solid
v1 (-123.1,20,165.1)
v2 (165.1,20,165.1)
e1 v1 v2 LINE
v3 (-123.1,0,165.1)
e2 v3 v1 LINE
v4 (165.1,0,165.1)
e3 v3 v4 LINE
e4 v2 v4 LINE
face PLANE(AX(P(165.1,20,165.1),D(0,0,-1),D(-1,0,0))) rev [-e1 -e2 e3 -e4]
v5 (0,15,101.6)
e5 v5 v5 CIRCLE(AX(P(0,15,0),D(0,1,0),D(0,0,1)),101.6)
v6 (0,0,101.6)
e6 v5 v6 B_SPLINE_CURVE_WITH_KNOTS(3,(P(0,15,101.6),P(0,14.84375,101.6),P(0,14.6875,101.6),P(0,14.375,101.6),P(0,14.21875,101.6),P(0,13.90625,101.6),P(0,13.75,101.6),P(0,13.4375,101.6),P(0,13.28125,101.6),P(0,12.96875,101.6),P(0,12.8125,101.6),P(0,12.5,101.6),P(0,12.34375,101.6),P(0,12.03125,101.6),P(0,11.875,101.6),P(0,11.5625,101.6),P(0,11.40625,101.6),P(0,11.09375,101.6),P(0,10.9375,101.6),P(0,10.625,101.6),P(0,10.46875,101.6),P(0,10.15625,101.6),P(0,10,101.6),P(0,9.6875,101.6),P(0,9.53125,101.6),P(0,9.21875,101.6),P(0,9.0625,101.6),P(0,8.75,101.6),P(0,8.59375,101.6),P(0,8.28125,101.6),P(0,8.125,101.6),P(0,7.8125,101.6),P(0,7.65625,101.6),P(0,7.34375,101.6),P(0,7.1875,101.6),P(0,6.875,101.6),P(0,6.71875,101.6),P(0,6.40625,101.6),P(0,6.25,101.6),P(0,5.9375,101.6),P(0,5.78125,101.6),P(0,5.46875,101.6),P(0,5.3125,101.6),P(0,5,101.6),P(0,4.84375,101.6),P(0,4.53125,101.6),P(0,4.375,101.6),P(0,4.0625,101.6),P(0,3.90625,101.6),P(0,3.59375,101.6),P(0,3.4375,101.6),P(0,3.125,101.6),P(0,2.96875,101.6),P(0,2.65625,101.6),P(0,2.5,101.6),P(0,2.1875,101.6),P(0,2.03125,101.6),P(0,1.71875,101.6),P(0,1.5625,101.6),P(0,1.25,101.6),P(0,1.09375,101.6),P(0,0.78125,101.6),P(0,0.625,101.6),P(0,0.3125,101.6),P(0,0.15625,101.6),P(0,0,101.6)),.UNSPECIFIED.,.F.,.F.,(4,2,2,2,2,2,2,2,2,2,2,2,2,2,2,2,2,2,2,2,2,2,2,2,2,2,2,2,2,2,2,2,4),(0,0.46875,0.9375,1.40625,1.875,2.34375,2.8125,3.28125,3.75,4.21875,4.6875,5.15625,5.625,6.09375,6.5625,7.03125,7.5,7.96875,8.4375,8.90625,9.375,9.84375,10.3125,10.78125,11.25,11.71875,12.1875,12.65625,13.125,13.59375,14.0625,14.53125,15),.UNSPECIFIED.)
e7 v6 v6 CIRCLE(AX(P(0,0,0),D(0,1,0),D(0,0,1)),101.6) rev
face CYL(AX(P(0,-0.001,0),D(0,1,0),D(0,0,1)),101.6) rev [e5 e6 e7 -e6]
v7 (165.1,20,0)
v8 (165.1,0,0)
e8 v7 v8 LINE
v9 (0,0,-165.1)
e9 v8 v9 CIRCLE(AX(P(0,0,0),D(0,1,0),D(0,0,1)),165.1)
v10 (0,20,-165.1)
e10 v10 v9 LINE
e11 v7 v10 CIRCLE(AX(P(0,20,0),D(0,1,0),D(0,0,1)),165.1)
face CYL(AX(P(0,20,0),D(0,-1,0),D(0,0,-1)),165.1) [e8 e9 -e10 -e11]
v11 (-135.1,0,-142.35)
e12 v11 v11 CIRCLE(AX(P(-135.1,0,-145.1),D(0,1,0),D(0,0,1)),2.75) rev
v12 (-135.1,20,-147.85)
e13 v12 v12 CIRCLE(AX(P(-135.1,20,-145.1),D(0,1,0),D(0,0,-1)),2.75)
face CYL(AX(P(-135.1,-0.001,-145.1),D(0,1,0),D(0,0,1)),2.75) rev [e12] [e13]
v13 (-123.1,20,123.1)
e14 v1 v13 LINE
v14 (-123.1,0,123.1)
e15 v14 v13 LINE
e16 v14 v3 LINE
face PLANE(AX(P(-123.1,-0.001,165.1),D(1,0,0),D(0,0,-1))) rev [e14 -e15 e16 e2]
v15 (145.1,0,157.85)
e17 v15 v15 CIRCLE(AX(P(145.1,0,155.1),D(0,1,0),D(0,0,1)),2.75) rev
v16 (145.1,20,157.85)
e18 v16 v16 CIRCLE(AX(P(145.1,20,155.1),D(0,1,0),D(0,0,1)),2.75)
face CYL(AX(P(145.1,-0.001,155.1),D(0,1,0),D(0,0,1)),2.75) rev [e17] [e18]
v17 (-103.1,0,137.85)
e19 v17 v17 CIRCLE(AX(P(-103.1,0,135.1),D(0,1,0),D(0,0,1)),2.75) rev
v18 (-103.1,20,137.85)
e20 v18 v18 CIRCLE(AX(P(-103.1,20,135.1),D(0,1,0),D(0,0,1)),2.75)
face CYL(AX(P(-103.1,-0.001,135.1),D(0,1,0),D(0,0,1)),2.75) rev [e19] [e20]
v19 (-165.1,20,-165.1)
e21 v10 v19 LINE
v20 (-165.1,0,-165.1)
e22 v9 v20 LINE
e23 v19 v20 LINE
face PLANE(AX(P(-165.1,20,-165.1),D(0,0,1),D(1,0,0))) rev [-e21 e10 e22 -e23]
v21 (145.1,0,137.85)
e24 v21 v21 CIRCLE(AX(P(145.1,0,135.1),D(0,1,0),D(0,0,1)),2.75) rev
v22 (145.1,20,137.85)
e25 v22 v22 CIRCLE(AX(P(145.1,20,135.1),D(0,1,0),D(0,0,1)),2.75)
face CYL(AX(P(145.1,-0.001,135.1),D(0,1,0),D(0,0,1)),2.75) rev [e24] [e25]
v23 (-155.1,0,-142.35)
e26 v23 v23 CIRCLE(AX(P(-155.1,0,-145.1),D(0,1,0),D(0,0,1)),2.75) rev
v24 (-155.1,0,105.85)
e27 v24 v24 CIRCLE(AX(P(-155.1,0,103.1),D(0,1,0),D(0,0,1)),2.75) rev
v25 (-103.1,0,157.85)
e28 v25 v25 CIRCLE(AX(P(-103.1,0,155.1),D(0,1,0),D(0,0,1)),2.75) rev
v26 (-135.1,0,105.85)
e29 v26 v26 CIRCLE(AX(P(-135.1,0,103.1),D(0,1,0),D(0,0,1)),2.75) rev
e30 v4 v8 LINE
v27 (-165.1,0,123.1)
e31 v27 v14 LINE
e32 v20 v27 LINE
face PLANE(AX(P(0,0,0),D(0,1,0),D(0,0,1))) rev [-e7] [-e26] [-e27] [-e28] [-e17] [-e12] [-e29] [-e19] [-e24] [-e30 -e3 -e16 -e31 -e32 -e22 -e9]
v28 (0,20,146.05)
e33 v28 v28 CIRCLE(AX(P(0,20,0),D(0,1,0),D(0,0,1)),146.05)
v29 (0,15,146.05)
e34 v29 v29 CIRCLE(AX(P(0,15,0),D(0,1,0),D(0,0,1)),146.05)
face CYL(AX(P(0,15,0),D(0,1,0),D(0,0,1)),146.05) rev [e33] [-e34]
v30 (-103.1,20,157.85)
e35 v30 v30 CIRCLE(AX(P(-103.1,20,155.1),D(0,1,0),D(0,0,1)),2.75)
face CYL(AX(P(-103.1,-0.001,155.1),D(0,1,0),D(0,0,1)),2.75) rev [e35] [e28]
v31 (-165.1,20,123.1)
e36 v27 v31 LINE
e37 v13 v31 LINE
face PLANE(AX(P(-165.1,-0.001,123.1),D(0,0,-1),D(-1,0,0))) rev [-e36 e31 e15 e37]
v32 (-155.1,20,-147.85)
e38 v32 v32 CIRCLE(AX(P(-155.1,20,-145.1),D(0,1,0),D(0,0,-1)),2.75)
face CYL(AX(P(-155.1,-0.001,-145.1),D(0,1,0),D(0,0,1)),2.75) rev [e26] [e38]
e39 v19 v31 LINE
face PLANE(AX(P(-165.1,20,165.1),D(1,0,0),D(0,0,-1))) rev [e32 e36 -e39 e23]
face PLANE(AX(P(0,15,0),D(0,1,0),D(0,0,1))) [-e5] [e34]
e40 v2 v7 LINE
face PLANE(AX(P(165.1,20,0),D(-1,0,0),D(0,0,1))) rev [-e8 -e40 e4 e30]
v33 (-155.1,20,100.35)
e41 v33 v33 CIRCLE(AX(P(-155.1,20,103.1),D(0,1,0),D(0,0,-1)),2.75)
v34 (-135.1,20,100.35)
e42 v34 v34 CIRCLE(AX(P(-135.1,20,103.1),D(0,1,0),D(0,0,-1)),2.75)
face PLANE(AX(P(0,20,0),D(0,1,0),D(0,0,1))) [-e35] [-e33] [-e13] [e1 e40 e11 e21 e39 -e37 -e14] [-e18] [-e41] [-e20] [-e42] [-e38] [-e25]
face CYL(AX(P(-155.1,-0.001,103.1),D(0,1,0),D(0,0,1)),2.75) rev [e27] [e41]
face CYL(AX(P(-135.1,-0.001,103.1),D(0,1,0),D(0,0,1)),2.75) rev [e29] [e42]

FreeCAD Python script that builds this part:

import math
import FreeCAD as App
import Part
import Sketcher
Q = App.Units.Quantity

doc = App.newDocument("Part")
body = doc.addObject("PartDesign::Body", "Body")

# Sketch on XZ plane
sketch1 = body.newObject("Sketcher::SketchObject", "Sketch")
sketch1.AttachmentSupport = (doc.getObject("XZ_Plane"), [""])
sketch1.MapMode = "FlatFace"
sketch1.addGeometry(Part.LineSegment(App.Vector(165, 165, 0), App.Vector(165, 0, 0)), False)
sketch1.addGeometry(Part.ArcOfCircle(Part.Circle(App.Vector(0, 0, 0), App.Vector(0, 0, 1), 165), math.radians(-90), math.radians(0)), False)
sketch1.addGeometry(Part.LineSegment(App.Vector(0, -165, 0), App.Vector(-165, -165, 0)), False)
sketch1.addGeometry(Part.LineSegment(App.Vector(-165, -165, 0), App.Vector(-165, 165, 0)), False)
sketch1.addGeometry(Part.LineSegment(App.Vector(-165, 165, 0), App.Vector(165, 165, 0)), False)
sketch1.addConstraint(Sketcher.Constraint("Tangent", 0, 2, 1, 2))
sketch1.addConstraint(Sketcher.Constraint("Tangent", 1, 1, 2, 1))
sketch1.addConstraint(Sketcher.Constraint("Coincident", 2, 2, 3, 1))
sketch1.addConstraint(Sketcher.Constraint("Coincident", 3, 2, 4, 1))
sketch1.addConstraint(Sketcher.Constraint("Coincident", 4, 2, 0, 1))
sketch1.addConstraint(Sketcher.Constraint("Vertical", 0))
sketch1.addConstraint(Sketcher.Constraint("Horizontal", 2))
sketch1.addConstraint(Sketcher.Constraint("Vertical", 3))
sketch1.addConstraint(Sketcher.Constraint("Horizontal", 4))
sketch1.addConstraint(Sketcher.Constraint("Coincident", 1, 3, -1, 1))
sketch1.addConstraint(Sketcher.Constraint("Symmetric", 2, 2, 4, 2, -1, 1))
sketch1.addConstraint(Sketcher.Constraint("Radius", 1, Q("165.1 mm")))
pad1 = body.newObject("PartDesign::Pad", "Pad")
pad1.Profile = sketch1
pad1.Length = 20
pad1.Reversed = True

# Sketch on XZ plane
sketch2 = body.newObject("Sketcher::SketchObject", "Sketch001")
sketch2.AttachmentSupport = (doc.getObject("XZ_Plane"), [""])
sketch2.MapMode = "FlatFace"
sketch2.AttachmentOffset = App.Placement(App.Vector(0, 0, -20), App.Rotation())
sketch2.addGeometry(Part.Circle(App.Vector(0, 0, 0), App.Vector(0, 0, 1), 146), False)
sketch2.addConstraint(Sketcher.Constraint("Coincident", 0, 3, -1, 1))
sketch2.addConstraint(Sketcher.Constraint("Diameter", 0, Q("292.1 mm")))
pocket1 = body.newObject("PartDesign::Pocket", "Pocket")
pocket1.Profile = sketch2
pocket1.Length = 5
pocket1.Reversed = True

# Sketch on XZ plane
sketch3 = body.newObject("Sketcher::SketchObject", "Sketch002")
sketch3.AttachmentSupport = (doc.getObject("XZ_Plane"), [""])
sketch3.MapMode = "FlatFace"
sketch3.AttachmentOffset = App.Placement(App.Vector(0, 0, -15), App.Rotation())
sketch3.addGeometry(Part.Circle(App.Vector(0, 0, 0), App.Vector(0, 0, 1), 102), False)
sketch3.addConstraint(Sketcher.Constraint("Coincident", 0, 3, -1, 1))
sketch3.addConstraint(Sketcher.Constraint("Diameter", 0, Q("203.2 mm")))
pocket2 = body.newObject("PartDesign::Pocket", "Pocket001")
pocket2.Profile = sketch3
pocket2.Type = "UpToFirst"
pocket2.Reversed = True

# Sketch on XZ plane
sketch4 = body.newObject("Sketcher::SketchObject", "Sketch003")
sketch4.AttachmentSupport = (doc.getObject("XZ_Plane"), [""])
sketch4.MapMode = "FlatFace"
sketch4.AttachmentOffset = App.Placement(App.Vector(0, 0, -20), App.Rotation())
sketch4.addGeometry(Part.LineSegment(App.Vector(-165, 123, 0), App.Vector(-165, 165, 0)), False)
sketch4.addGeometry(Part.LineSegment(App.Vector(-165, 165, 0), App.Vector(-123, 165, 0)), False)
sketch4.addGeometry(Part.LineSegment(App.Vector(-123, 165, 0), App.Vector(-123, 123, 0)), False)
sketch4.addGeometry(Part.LineSegment(App.Vector(-123, 123, 0), App.Vector(-165, 123, 0)), False)
sketch4.addConstraint(Sketcher.Constraint("Coincident", 0, 2, 1, 1))
sketch4.addConstraint(Sketcher.Constraint("Coincident", 1, 2, 2, 1))
sketch4.addConstraint(Sketcher.Constraint("Coincident", 2, 2, 3, 1))
sketch4.addConstraint(Sketcher.Constraint("Coincident", 3, 2, 0, 1))
sketch4.addConstraint(Sketcher.Constraint("Vertical", 0))
sketch4.addConstraint(Sketcher.Constraint("Horizontal", 1))
sketch4.addConstraint(Sketcher.Constraint("Vertical", 2))
sketch4.addConstraint(Sketcher.Constraint("Horizontal", 3))
sketch4.addConstraint(Sketcher.Constraint("Equal", 3, 0))
sketch4.addConstraint(Sketcher.Constraint("DistanceX", 1, 1, 1, 2, Q("42 mm")))
sketch4.addConstraint(Sketcher.Constraint("DistanceX", 0, 2, -1, 1, Q("165.1 mm")))
sketch4.addConstraint(Sketcher.Constraint("DistanceY", -1, 1, 0, 2, Q("165.1 mm")))
pocket3 = body.newObject("PartDesign::Pocket", "Pocket002")
pocket3.Profile = sketch4
pocket3.Type = "UpToFirst"
pocket3.Reversed = True

# Sketch on XZ plane
sketch5 = body.newObject("Sketcher::SketchObject", "Sketch004")
sketch5.AttachmentSupport = (doc.getObject("XZ_Plane"), [""])
sketch5.MapMode = "FlatFace"
sketch5.AttachmentOffset = App.Placement(App.Vector(0, 0, -20), App.Rotation())
sketch5.addGeometry(Part.Circle(App.Vector(-103.1, 135.1, 0), App.Vector(0, 0, 1), 2.8), False)
sketch5.addConstraint(Sketcher.Constraint("Diameter", 0, Q("5.5 mm")))
sketch5.addConstraint(Sketcher.Constraint("DistanceX", 0, 3, -1, 1, Q("103.1 mm")))
sketch5.addConstraint(Sketcher.Constraint("DistanceY", -1, 1, 0, 3, Q("135.1 mm")))
pocket4 = body.newObject("PartDesign::Pocket", "Pocket003")
pocket4.Profile = sketch5
pocket4.Type = "UpToFirst"
pocket4.Reversed = True

# Sketch on XZ plane
sketch6 = body.newObject("Sketcher::SketchObject", "Sketch005")
sketch6.AttachmentSupport = (doc.getObject("XZ_Plane"), [""])
sketch6.MapMode = "FlatFace"
sketch6.AttachmentOffset = App.Placement(App.Vector(0, 0, -20), App.Rotation())
sketch6.addGeometry(Part.Circle(App.Vector(145.1, 135.1, 0), App.Vector(0, 0, 1), 2.8), False)
sketch6.addConstraint(Sketcher.Constraint("Diameter", 0, Q("5.5 mm")))
sketch6.addConstraint(Sketcher.Constraint("DistanceX", -1, 1, 0, 3, Q("145.1 mm")))
sketch6.addConstraint(Sketcher.Constraint("DistanceY", -1, 1, 0, 3, Q("135.1 mm")))
pocket5 = body.newObject("PartDesign::Pocket", "Pocket004")
pocket5.Profile = sketch6
pocket5.Type = "UpToFirst"
pocket5.Reversed = True

# Sketch on XZ plane
sketch7 = body.newObject("Sketcher::SketchObject", "Sketch006")
sketch7.AttachmentSupport = (doc.getObject("XZ_Plane"), [""])
sketch7.MapMode = "FlatFace"
sketch7.AttachmentOffset = App.Placement(App.Vector(0, 0, -20), App.Rotation())
sketch7.addGeometry(Part.Circle(App.Vector(-103.1, 155.1, 0), App.Vector(0, 0, 1), 2.8), False)
sketch7.addConstraint(Sketcher.Constraint("Diameter", 0, Q("5.5 mm")))
sketch7.addConstraint(Sketcher.Constraint("DistanceX", 0, 3, -1, 1, Q("103.1 mm")))
sketch7.addConstraint(Sketcher.Constraint("DistanceY", -1, 1, 0, 3, Q("155.1 mm")))
pocket6 = body.newObject("PartDesign::Pocket", "Pocket005")
pocket6.Profile = sketch7
pocket6.Type = "UpToFirst"
pocket6.Reversed = True

# Sketch on XZ plane
sketch8 = body.newObject("Sketcher::SketchObject", "Sketch007")
sketch8.AttachmentSupport = (doc.getObject("XZ_Plane"), [""])
sketch8.MapMode = "FlatFace"
sketch8.AttachmentOffset = App.Placement(App.Vector(0, 0, -20), App.Rotation())
sketch8.addGeometry(Part.Circle(App.Vector(145.1, 155.1, 0), App.Vector(0, 0, 1), 2.8), False)
sketch8.addConstraint(Sketcher.Constraint("Diameter", 0, Q("5.5 mm")))
sketch8.addConstraint(Sketcher.Constraint("DistanceX", -1, 1, 0, 3, Q("145.1 mm")))
sketch8.addConstraint(Sketcher.Constraint("DistanceY", -1, 1, 0, 3, Q("155.1 mm")))
pocket7 = body.newObject("PartDesign::Pocket", "Pocket006")
pocket7.Profile = sketch8
pocket7.Type = "UpToFirst"
pocket7.Reversed = True

# Sketch on XZ plane
sketch9 = body.newObject("Sketcher::SketchObject", "Sketch008")
sketch9.AttachmentSupport = (doc.getObject("XZ_Plane"), [""])
sketch9.MapMode = "FlatFace"
sketch9.AttachmentOffset = App.Placement(App.Vector(0, 0, -20), App.Rotation())
sketch9.addGeometry(Part.Circle(App.Vector(-155.1, -145.1, 0), App.Vector(0, 0, 1), 2.8), False)
sketch9.addConstraint(Sketcher.Constraint("Diameter", 0, Q("5.5 mm")))
sketch9.addConstraint(Sketcher.Constraint("DistanceX", 0, 3, -1, 1, Q("155.1 mm")))
sketch9.addConstraint(Sketcher.Constraint("DistanceY", 0, 3, -1, 1, Q("145.1 mm")))
pocket8 = body.newObject("PartDesign::Pocket", "Pocket007")
pocket8.Profile = sketch9
pocket8.Type = "UpToFirst"
pocket8.Reversed = True

# Sketch on XZ plane
sketch10 = body.newObject("Sketcher::SketchObject", "Sketch009")
sketch10.AttachmentSupport = (doc.getObject("XZ_Plane"), [""])
sketch10.MapMode = "FlatFace"
sketch10.AttachmentOffset = App.Placement(App.Vector(0, 0, -20), App.Rotation())
sketch10.addGeometry(Part.Circle(App.Vector(-155.1, 103.1, 0), App.Vector(0, 0, 1), 2.8), False)
sketch10.addConstraint(Sketcher.Constraint("Diameter", 0, Q("5.5 mm")))
sketch10.addConstraint(Sketcher.Constraint("DistanceX", 0, 3, -1, 1, Q("155.1 mm")))
sketch10.addConstraint(Sketcher.Constraint("DistanceY", -1, 1, 0, 3, Q("103.1 mm")))
pocket9 = body.newObject("PartDesign::Pocket", "Pocket008")
pocket9.Profile = sketch10
pocket9.Type = "UpToFirst"
pocket9.Reversed = True

# Sketch on XZ plane
sketch11 = body.newObject("Sketcher::SketchObject", "Sketch010")
sketch11.AttachmentSupport = (doc.getObject("XZ_Plane"), [""])
sketch11.MapMode = "FlatFace"
sketch11.AttachmentOffset = App.Placement(App.Vector(0, 0, -20), App.Rotation())
sketch11.addGeometry(Part.Circle(App.Vector(-135.1, -145.1, 0), App.Vector(0, 0, 1), 2.8), False)
sketch11.addConstraint(Sketcher.Constraint("Diameter", 0, Q("5.5 mm")))
sketch11.addConstraint(Sketcher.Constraint("DistanceX", 0, 3, -1, 1, Q("135.1 mm")))
sketch11.addConstraint(Sketcher.Constraint("DistanceY", 0, 3, -1, 1, Q("145.1 mm")))
pocket10 = body.newObject("PartDesign::Pocket", "Pocket009")
pocket10.Profile = sketch11
pocket10.Type = "UpToFirst"
pocket10.Reversed = True

# Sketch on XZ plane
sketch12 = body.newObject("Sketcher::SketchObject", "Sketch011")
sketch12.AttachmentSupport = (doc.getObject("XZ_Plane"), [""])
sketch12.MapMode = "FlatFace"
sketch12.AttachmentOffset = App.Placement(App.Vector(0, 0, -20), App.Rotation())
sketch12.addGeometry(Part.Circle(App.Vector(-135.1, 103.1, 0), App.Vector(0, 0, 1), 2.8), False)
sketch12.addConstraint(Sketcher.Constraint("Diameter", 0, Q("5.5 mm")))
sketch12.addConstraint(Sketcher.Constraint("DistanceX", 0, 3, -1, 1, Q("135.1 mm")))
sketch12.addConstraint(Sketcher.Constraint("DistanceY", -1, 1, 0, 3, Q("103.1 mm")))
pocket11 = body.newObject("PartDesign::Pocket", "Pocket010")
pocket11.Profile = sketch12
pocket11.Type = "UpToFirst"
pocket11.Reversed = True

doc.recompute()
